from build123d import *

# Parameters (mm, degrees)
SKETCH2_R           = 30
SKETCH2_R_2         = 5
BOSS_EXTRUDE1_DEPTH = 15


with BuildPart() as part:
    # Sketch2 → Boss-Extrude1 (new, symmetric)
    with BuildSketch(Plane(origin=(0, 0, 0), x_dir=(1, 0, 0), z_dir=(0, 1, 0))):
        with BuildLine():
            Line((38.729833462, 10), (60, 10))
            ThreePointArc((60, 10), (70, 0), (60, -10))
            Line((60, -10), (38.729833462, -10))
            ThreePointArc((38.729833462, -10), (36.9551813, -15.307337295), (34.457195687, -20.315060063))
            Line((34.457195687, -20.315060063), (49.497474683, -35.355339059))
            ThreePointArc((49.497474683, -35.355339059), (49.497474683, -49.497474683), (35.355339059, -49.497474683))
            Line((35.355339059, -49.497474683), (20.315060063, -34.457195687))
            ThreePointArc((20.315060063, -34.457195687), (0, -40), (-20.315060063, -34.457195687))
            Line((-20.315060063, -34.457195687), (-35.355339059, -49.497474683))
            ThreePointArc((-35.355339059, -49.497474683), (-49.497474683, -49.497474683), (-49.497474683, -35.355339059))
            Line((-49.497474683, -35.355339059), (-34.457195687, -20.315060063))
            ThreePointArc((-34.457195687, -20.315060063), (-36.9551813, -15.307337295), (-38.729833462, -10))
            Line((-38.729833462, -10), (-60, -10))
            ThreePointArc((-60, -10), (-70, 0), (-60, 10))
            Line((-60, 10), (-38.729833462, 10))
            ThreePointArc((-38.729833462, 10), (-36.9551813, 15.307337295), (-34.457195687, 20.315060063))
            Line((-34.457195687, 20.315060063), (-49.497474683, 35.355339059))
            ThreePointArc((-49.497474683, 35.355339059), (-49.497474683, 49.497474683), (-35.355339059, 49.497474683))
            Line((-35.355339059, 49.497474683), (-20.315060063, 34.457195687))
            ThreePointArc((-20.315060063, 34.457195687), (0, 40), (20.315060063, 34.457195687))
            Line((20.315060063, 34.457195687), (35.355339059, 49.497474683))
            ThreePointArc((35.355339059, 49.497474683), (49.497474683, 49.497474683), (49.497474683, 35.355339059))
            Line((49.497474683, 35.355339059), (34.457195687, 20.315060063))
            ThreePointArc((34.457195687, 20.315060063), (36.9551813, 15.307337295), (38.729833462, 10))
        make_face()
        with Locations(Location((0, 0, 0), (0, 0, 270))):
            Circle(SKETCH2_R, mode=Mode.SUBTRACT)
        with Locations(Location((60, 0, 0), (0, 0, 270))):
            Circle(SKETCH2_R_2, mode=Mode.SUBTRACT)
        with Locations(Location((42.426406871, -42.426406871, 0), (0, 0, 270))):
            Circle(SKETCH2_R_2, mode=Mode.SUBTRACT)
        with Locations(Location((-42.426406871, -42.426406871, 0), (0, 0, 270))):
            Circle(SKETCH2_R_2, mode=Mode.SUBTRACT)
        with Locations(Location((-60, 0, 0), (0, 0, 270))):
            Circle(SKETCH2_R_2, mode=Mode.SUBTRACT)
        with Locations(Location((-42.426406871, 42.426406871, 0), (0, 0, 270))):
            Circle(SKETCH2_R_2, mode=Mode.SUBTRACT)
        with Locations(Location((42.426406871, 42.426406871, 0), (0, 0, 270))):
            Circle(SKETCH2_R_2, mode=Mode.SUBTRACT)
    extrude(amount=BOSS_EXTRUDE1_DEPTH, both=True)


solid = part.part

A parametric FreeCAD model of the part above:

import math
import FreeCAD as App
import Part
import Sketcher
from FreeCAD import Vector

doc = App.newDocument("Part")
body = doc.addObject("PartDesign::Body", "Body")

sketch1 = doc.addObject("Sketcher::SketchObject", "Sketch")
body.addObject(sketch1)
sketch1.AttachmentSupport = (doc.XZ_Plane, [""])
sketch1.MapMode = "FlatFace"
sketch1.addGeometry([
    Part.LineSegment(Vector(60, -10, 0), Vector(39, -10, 0)),
    Part.ArcOfCircle(Part.Circle(Vector(0, 0, 0), Vector(0, 0, 1), 40), math.radians(-30.52), math.radians(-14.48)),
    Part.LineSegment(Vector(34, -20, 0), Vector(49, -35, 0)),
    Part.ArcOfCircle(Part.Circle(Vector(42, -42, 0), Vector(0, 0, 1), 10), math.radians(-135), math.radians(45)),
    Part.LineSegment(Vector(35, -49, 0), Vector(20, -34, 0)),
    Part.ArcOfCircle(Part.Circle(Vector(0, 0, 0), Vector(0, 0, 1), 40), math.radians(-121), math.radians(-59)),
    Part.LineSegment(Vector(-20, -34, 0), Vector(-35, -49, 0)),
    Part.ArcOfCircle(Part.Circle(Vector(-42, -42, 0), Vector(0, 0, 1), 10), math.radians(135), math.radians(315)),
    Part.LineSegment(Vector(-49, -35, 0), Vector(-34, -20, 0)),
    Part.ArcOfCircle(Part.Circle(Vector(0, 0, 0), Vector(0, 0, 1), 40), math.radians(-165.52), math.radians(-149.48)),
    Part.LineSegment(Vector(-39, -10, 0), Vector(-60, -10, 0)),
    Part.ArcOfCircle(Part.Circle(Vector(-60, 0, 0), Vector(0, 0, 1), 10), math.radians(90), math.radians(270)),
    Part.LineSegment(Vector(-60, 10, 0), Vector(-39, 10, 0)),
    Part.ArcOfCircle(Part.Circle(Vector(0, 0, 0), Vector(0, 0, 1), 40), math.radians(149.48), math.radians(165.52)),
    Part.LineSegment(Vector(-34, 20, 0), Vector(-49, 35, 0)),
    Part.ArcOfCircle(Part.Circle(Vector(-42, 42, 0), Vector(0, 0, 1), 10), math.radians(45), math.radians(225)),
    Part.LineSegment(Vector(-35, 49, 0), Vector(-20, 34, 0)),
    Part.ArcOfCircle(Part.Circle(Vector(0, 0, 0), Vector(0, 0, 1), 40), math.radians(59), math.radians(121)),
    Part.LineSegment(Vector(20, 34, 0), Vector(35, 49, 0)),
    Part.ArcOfCircle(Part.Circle(Vector(42, 42, 0), Vector(0, 0, 1), 10), math.radians(-45), math.radians(135)),
    Part.LineSegment(Vector(49, 35, 0), Vector(34, 20, 0)),
    Part.ArcOfCircle(Part.Circle(Vector(0, 0, 0), Vector(0, 0, 1), 40), math.radians(14.48), math.radians(30.52)),
    Part.LineSegment(Vector(39, 10, 0), Vector(60, 10, 0)),
    Part.ArcOfCircle(Part.Circle(Vector(60, 0, 0), Vector(0, 0, 1), 10), math.radians(-90), math.radians(90)),
    Part.Circle(Vector(42, 42, 0), Vector(0, 0, 1), 5),
    Part.Circle(Vector(-42, 42, 0), Vector(0, 0, 1), 5),
    Part.Circle(Vector(60, 0, 0), Vector(0, 0, 1), 5),
    Part.Circle(Vector(42, -42, 0), Vector(0, 0, 1), 5),
    Part.Circle(Vector(0, 0, 0), Vector(0, 0, 1), 30),
    Part.Circle(Vector(-60, 0, 0), Vector(0, 0, 1), 5),
    Part.Circle(Vector(-42, -42, 0), Vector(0, 0, 1), 5),
], False)
sketch1.addConstraint([
    Sketcher.Constraint("Coincident", 0, 2, 1, 2),
    Sketcher.Constraint("Coincident", 1, 1, 2, 1),
    Sketcher.Constraint("Tangent", 2, 2, 3, 2),
    Sketcher.Constraint("Tangent", 3, 1, 4, 1),
    Sketcher.Constraint("Coincident", 4, 2, 5, 2),
    Sketcher.Constraint("Coincident", 5, 1, 6, 1),
    Sketcher.Constraint("Tangent", 6, 2, 7, 2),
    Sketcher.Constraint("Tangent", 7, 1, 8, 1),
    Sketcher.Constraint("Coincident", 8, 2, 9, 2),
    Sketcher.Constraint("Coincident", 9, 1, 10, 1),
    Sketcher.Constraint("Tangent", 10, 2, 11, 2),
    Sketcher.Constraint("Tangent", 11, 1, 12, 1),
    Sketcher.Constraint("Coincident", 12, 2, 13, 2),
    Sketcher.Constraint("Coincident", 13, 1, 14, 1),
    Sketcher.Constraint("Tangent", 14, 2, 15, 2),
    Sketcher.Constraint("Tangent", 15, 1, 16, 1),
    Sketcher.Constraint("Coincident", 16, 2, 17, 2),
    Sketcher.Constraint("Coincident", 17, 1, 18, 1),
    Sketcher.Constraint("Tangent", 18, 2, 19, 2),
    Sketcher.Constraint("Tangent", 19, 1, 20, 1),
    Sketcher.Constraint("Coincident", 20, 2, 21, 2),
    Sketcher.Constraint("Coincident", 21, 1, 22, 1),
    Sketcher.Constraint("Tangent", 22, 2, 23, 2),
    Sketcher.Constraint("Tangent", 23, 1, 0, 1),
    Sketcher.Constraint("Horizontal", 0),
    Sketcher.Constraint("Horizontal", 10),
    Sketcher.Constraint("Horizontal", 12),
    Sketcher.Constraint("Horizontal", 22),
    Sketcher.Constraint("Coincident", 1, 3, -1, 1),
    Sketcher.Constraint("Coincident", 5, 3, -1, 1),
    Sketcher.Constraint("Coincident", 9, 3, -1, 1),
    Sketcher.Constraint("Coincident", 13, 3, -1, 1),
    Sketcher.Constraint("Coincident", 17, 3, -1, 1),
    Sketcher.Constraint("Coincident", 21, 3, -1, 1),
    Sketcher.Constraint("Coincident", 28, 3, -1, 1),
    Sketcher.Constraint("Coincident", 24, 3, 19, 3),
    Sketcher.Constraint("Coincident", 25, 3, 15, 3),
    Sketcher.Constraint("Coincident", 26, 3, 23, 3),
    Sketcher.Constraint("Coincident", 27, 3, 3, 3),
    Sketcher.Constraint("Coincident", 29, 3, 11, 3),
    Sketcher.Constraint("Coincident", 30, 3, 7, 3),
    Sketcher.Constraint("Equal", 1, 5),
    Sketcher.Constraint("Equal", 3, 7),
    Sketcher.Constraint("Equal", 5, 9),
    Sketcher.Constraint("Equal", 7, 11),
    Sketcher.Constraint("Equal", 9, 13),
    Sketcher.Constraint("Equal", 11, 15),
    Sketcher.Constraint("Equal", 13, 17),
    Sketcher.Constraint("Equal", 15, 19),
    Sketcher.Constraint("Equal", 17, 21),
    Sketcher.Constraint("Equal", 19, 23),
    Sketcher.Constraint("Equal", 24, 25),
    Sketcher.Constraint("Equal", 25, 26),
    Sketcher.Constraint("Equal", 26, 27),
    Sketcher.Constraint("Equal", 27, 29),
    Sketcher.Constraint("Equal", 29, 30),
    Sketcher.Constraint("Symmetric", 3, 3, 15, 3, -1, 1),
    Sketcher.Constraint("Symmetric", 7, 3, 19, 3, -1, 1),
    Sketcher.Constraint("Symmetric", 11, 3, 23, 3, -1, 1),
    Sketcher.Constraint("Symmetric", 3, 3, 7, 3, -2),
    Sketcher.Constraint("PointOnObject", 11, 3, -1),
    Sketcher.Constraint("Parallel", 2, 4),
    Sketcher.Constraint("Perpendicular", 4, 6),
    Sketcher.Constraint("Parallel", 6, 8),
    Sketcher.Constraint("Perpendicular", 8, 14),
    Sketcher.Constraint("Parallel", 14, 16),
    Sketcher.Constraint("Perpendicular", 16, 18),
    Sketcher.Constraint("Parallel", 18, 20),
    Sketcher.Constraint("Horizontal", 4, 2, 5, 1),
    Sketcher.Constraint("Equal", 2, 4),
    Sketcher.Constraint("Diameter", 24, 10.0),
    Sketcher.Constraint("Diameter", 28, 60.0),
    Sketcher.Constraint("Radius", 1, 40.0),
    Sketcher.Constraint("Radius", 3, 10.0),
    Sketcher.Constraint("DistanceX", 11, 3, -1, 1, 60.0),
    Sketcher.Constraint("DistanceY", 2, 2, -1, 1, 35.355339),
])
pad1 = doc.addObject("PartDesign::Pad", "Pad")
body.addObject(pad1)
pad1.Profile = sketch1
pad1.Length = 30
pad1.Midplane = True

doc.recompute()
